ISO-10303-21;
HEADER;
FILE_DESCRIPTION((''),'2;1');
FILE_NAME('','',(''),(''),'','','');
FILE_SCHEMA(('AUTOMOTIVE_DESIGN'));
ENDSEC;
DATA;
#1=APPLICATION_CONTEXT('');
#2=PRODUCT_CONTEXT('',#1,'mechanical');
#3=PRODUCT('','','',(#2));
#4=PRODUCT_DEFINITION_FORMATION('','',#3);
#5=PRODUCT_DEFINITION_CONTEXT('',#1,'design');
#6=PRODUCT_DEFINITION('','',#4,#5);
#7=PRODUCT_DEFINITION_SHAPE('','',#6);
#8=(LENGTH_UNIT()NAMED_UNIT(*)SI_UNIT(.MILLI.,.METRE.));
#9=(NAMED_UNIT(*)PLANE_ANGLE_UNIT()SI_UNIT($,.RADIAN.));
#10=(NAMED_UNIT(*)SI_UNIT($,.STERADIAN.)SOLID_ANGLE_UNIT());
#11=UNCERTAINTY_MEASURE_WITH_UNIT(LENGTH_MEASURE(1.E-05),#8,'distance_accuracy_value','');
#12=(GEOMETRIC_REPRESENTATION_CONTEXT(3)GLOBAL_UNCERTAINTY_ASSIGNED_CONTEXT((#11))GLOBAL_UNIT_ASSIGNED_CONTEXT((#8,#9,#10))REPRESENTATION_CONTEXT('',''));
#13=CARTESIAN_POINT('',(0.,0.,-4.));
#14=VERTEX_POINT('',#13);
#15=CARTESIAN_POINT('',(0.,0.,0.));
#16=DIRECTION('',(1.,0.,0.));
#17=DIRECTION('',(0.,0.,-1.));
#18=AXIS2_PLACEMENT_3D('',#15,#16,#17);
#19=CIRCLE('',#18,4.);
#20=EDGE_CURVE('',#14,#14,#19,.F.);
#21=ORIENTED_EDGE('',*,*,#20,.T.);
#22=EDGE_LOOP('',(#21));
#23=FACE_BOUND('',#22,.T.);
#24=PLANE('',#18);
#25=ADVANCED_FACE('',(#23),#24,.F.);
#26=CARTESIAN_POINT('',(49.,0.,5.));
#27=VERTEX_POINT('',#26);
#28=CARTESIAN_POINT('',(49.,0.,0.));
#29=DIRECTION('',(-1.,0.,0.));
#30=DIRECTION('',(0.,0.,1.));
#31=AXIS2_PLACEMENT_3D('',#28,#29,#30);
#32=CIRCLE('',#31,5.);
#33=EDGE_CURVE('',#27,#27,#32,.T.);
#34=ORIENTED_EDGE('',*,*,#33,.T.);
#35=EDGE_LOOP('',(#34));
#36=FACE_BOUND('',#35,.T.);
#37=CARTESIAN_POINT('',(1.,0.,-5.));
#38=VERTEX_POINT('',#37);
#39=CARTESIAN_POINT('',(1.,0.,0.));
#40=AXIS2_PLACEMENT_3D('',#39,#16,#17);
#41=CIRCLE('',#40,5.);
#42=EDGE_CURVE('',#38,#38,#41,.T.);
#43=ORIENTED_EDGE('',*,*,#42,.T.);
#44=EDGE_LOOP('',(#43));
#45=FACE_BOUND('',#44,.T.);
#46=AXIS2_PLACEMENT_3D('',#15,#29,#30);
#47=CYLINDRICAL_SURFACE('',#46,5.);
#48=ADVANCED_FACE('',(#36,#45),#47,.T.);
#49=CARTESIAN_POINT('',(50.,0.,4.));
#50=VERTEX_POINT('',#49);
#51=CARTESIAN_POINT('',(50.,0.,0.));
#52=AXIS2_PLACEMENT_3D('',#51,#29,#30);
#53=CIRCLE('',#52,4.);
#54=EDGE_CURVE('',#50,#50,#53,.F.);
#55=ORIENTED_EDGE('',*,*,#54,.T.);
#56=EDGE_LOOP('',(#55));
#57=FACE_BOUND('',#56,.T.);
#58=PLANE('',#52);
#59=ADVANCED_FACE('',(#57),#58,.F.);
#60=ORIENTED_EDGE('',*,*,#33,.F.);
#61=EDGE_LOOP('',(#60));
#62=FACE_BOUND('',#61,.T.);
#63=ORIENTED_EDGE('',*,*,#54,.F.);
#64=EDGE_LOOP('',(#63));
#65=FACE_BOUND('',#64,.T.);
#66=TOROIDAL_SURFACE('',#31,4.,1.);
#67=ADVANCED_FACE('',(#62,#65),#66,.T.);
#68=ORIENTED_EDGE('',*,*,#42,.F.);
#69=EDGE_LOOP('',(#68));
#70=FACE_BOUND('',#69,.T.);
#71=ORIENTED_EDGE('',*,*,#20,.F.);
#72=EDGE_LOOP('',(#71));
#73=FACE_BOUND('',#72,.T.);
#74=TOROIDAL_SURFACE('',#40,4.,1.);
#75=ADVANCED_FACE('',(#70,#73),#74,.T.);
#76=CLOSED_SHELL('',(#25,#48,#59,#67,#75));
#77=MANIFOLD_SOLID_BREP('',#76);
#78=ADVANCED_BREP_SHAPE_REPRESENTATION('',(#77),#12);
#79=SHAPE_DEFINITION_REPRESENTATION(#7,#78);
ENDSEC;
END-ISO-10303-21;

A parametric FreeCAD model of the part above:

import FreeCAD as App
import Part
import Sketcher
from FreeCAD import Vector
Q = App.Units.Quantity


def edges_at(feature, points):
    """Names of the edges that pass closest to the given points."""
    edges = feature.Shape.Edges
    near = lambda p: min(range(len(edges)), key=lambda i: edges[i].distToShape(Part.Vertex(*p))[0])
    return sorted({f"Edge{near(p) + 1}" for p in points})


def add_polygon(sketch, points):
    """Adds a closed chain of lines whose ends are joined by coincident constraints."""
    first, n = sketch.GeometryCount, len(points)
    for a, b in zip(points, points[1:] + points[:1]):
        sketch.addGeometry(Part.LineSegment(App.Vector(*a, 0), App.Vector(*b, 0)), False)
    for i in range(n):
        sketch.addConstraint(Sketcher.Constraint("Coincident", first + i, 2, first + (i + 1) % n, 1))

doc = App.newDocument("Part")
body = doc.addObject("PartDesign::Body", "Body")

# Sketch on XY plane
sketch1 = body.newObject("Sketcher::SketchObject", "Sketch")
sketch1.AttachmentSupport = (doc.getObject("XY_Plane"), [""])
sketch1.MapMode = "FlatFace"
add_polygon(sketch1, [(0, 5), (0, 0), (50, 0), (50, 5)])  # lines 0-3
sketch1.addConstraint(Sketcher.Constraint("Vertical", 0))
sketch1.addConstraint(Sketcher.Constraint("Horizontal", 1))
sketch1.addConstraint(Sketcher.Constraint("Vertical", 2))
sketch1.addConstraint(Sketcher.Constraint("Horizontal", 3))
sketch1.addConstraint(Sketcher.Constraint("Coincident", 0, 2, -1, 1))
sketch1.addConstraint(Sketcher.Constraint("DistanceX", 1, 1, 1, 2, Q("50 mm")))
sketch1.addConstraint(Sketcher.Constraint("DistanceY", 0, 2, 0, 1, Q("5 mm")))
revolution = body.newObject("PartDesign::Revolution", "Revolution")
revolution.Profile = sketch1
revolution.ReferenceAxis = (sketch1, ["H_Axis"])
revolution.Angle = 360
doc.recompute()

fillet = body.newObject("PartDesign::Fillet", "Fillet")
fillet.Base = (revolution, edges_at(revolution, [(50, 0, -5), (0, 0, -5)]))
fillet.Radius = 1

doc.recompute()
